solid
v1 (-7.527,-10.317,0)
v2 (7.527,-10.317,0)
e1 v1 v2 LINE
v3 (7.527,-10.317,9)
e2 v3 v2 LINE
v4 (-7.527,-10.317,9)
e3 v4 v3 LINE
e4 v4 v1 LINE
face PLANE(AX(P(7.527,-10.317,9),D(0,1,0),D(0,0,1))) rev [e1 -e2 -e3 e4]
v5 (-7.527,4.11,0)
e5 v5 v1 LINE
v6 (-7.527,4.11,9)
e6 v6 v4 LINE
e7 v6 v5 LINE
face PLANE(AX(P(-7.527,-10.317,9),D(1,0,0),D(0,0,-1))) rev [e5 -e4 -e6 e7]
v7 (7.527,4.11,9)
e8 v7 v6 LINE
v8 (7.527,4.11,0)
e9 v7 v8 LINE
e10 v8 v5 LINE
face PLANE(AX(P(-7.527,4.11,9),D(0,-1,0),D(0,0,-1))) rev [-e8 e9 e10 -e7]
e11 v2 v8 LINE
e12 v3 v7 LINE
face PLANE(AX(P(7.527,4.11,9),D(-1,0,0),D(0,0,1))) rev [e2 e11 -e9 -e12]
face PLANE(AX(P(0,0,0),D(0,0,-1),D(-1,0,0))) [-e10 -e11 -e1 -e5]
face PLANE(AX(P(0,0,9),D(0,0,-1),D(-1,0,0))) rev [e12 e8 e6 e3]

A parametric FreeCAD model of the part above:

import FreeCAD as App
import Part
import Sketcher

V = App.Vector
Q = App.Units.Quantity


def add_polygon(sketch, points):
    """Adds a closed chain of lines whose ends are joined by coincident constraints."""
    first, n = sketch.GeometryCount, len(points)
    for a, b in zip(points, points[1:] + points[:1]):
        sketch.addGeometry(Part.LineSegment(App.Vector(*a, 0), App.Vector(*b, 0)), False)
    for i in range(n):
        sketch.addConstraint(Sketcher.Constraint("Coincident", first + i, 2, first + (i + 1) % n, 1))

doc = App.newDocument("Part")
body = doc.addObject("PartDesign::Body", "Body")

# Sketch on XY plane
sketch1 = body.newObject("Sketcher::SketchObject", "Sketch")
sketch1.AttachmentSupport = (doc.getObject("XY_Plane"), [""])
sketch1.MapMode = "FlatFace"
add_polygon(sketch1, [(-8, 4), (-8, -10), (8, -10), (8, 4)])  # lines 0-3
sketch1.addConstraint(Sketcher.Constraint("Vertical", 0))
sketch1.addConstraint(Sketcher.Constraint("Horizontal", 1))
sketch1.addConstraint(Sketcher.Constraint("Vertical", 2))
sketch1.addConstraint(Sketcher.Constraint("Horizontal", 3))
sketch1.addConstraint(Sketcher.Constraint("DistanceX", 1, 1, 1, 2, Q("15.054 mm")))
sketch1.addConstraint(Sketcher.Constraint("DistanceY", 0, 2, 0, 1, Q("14.427 mm")))
sketch1.addConstraint(Sketcher.Constraint("DistanceY", -1, 1, 2, 2, Q("4.11 mm")))
sketch1.addConstraint(Sketcher.Constraint("DistanceX", 0, 2, -1, 1, Q("7.527 mm")))
pad1 = body.newObject("PartDesign::Pad", "Pad")
pad1.Profile = sketch1
pad1.Length = 9

doc.recompute()
